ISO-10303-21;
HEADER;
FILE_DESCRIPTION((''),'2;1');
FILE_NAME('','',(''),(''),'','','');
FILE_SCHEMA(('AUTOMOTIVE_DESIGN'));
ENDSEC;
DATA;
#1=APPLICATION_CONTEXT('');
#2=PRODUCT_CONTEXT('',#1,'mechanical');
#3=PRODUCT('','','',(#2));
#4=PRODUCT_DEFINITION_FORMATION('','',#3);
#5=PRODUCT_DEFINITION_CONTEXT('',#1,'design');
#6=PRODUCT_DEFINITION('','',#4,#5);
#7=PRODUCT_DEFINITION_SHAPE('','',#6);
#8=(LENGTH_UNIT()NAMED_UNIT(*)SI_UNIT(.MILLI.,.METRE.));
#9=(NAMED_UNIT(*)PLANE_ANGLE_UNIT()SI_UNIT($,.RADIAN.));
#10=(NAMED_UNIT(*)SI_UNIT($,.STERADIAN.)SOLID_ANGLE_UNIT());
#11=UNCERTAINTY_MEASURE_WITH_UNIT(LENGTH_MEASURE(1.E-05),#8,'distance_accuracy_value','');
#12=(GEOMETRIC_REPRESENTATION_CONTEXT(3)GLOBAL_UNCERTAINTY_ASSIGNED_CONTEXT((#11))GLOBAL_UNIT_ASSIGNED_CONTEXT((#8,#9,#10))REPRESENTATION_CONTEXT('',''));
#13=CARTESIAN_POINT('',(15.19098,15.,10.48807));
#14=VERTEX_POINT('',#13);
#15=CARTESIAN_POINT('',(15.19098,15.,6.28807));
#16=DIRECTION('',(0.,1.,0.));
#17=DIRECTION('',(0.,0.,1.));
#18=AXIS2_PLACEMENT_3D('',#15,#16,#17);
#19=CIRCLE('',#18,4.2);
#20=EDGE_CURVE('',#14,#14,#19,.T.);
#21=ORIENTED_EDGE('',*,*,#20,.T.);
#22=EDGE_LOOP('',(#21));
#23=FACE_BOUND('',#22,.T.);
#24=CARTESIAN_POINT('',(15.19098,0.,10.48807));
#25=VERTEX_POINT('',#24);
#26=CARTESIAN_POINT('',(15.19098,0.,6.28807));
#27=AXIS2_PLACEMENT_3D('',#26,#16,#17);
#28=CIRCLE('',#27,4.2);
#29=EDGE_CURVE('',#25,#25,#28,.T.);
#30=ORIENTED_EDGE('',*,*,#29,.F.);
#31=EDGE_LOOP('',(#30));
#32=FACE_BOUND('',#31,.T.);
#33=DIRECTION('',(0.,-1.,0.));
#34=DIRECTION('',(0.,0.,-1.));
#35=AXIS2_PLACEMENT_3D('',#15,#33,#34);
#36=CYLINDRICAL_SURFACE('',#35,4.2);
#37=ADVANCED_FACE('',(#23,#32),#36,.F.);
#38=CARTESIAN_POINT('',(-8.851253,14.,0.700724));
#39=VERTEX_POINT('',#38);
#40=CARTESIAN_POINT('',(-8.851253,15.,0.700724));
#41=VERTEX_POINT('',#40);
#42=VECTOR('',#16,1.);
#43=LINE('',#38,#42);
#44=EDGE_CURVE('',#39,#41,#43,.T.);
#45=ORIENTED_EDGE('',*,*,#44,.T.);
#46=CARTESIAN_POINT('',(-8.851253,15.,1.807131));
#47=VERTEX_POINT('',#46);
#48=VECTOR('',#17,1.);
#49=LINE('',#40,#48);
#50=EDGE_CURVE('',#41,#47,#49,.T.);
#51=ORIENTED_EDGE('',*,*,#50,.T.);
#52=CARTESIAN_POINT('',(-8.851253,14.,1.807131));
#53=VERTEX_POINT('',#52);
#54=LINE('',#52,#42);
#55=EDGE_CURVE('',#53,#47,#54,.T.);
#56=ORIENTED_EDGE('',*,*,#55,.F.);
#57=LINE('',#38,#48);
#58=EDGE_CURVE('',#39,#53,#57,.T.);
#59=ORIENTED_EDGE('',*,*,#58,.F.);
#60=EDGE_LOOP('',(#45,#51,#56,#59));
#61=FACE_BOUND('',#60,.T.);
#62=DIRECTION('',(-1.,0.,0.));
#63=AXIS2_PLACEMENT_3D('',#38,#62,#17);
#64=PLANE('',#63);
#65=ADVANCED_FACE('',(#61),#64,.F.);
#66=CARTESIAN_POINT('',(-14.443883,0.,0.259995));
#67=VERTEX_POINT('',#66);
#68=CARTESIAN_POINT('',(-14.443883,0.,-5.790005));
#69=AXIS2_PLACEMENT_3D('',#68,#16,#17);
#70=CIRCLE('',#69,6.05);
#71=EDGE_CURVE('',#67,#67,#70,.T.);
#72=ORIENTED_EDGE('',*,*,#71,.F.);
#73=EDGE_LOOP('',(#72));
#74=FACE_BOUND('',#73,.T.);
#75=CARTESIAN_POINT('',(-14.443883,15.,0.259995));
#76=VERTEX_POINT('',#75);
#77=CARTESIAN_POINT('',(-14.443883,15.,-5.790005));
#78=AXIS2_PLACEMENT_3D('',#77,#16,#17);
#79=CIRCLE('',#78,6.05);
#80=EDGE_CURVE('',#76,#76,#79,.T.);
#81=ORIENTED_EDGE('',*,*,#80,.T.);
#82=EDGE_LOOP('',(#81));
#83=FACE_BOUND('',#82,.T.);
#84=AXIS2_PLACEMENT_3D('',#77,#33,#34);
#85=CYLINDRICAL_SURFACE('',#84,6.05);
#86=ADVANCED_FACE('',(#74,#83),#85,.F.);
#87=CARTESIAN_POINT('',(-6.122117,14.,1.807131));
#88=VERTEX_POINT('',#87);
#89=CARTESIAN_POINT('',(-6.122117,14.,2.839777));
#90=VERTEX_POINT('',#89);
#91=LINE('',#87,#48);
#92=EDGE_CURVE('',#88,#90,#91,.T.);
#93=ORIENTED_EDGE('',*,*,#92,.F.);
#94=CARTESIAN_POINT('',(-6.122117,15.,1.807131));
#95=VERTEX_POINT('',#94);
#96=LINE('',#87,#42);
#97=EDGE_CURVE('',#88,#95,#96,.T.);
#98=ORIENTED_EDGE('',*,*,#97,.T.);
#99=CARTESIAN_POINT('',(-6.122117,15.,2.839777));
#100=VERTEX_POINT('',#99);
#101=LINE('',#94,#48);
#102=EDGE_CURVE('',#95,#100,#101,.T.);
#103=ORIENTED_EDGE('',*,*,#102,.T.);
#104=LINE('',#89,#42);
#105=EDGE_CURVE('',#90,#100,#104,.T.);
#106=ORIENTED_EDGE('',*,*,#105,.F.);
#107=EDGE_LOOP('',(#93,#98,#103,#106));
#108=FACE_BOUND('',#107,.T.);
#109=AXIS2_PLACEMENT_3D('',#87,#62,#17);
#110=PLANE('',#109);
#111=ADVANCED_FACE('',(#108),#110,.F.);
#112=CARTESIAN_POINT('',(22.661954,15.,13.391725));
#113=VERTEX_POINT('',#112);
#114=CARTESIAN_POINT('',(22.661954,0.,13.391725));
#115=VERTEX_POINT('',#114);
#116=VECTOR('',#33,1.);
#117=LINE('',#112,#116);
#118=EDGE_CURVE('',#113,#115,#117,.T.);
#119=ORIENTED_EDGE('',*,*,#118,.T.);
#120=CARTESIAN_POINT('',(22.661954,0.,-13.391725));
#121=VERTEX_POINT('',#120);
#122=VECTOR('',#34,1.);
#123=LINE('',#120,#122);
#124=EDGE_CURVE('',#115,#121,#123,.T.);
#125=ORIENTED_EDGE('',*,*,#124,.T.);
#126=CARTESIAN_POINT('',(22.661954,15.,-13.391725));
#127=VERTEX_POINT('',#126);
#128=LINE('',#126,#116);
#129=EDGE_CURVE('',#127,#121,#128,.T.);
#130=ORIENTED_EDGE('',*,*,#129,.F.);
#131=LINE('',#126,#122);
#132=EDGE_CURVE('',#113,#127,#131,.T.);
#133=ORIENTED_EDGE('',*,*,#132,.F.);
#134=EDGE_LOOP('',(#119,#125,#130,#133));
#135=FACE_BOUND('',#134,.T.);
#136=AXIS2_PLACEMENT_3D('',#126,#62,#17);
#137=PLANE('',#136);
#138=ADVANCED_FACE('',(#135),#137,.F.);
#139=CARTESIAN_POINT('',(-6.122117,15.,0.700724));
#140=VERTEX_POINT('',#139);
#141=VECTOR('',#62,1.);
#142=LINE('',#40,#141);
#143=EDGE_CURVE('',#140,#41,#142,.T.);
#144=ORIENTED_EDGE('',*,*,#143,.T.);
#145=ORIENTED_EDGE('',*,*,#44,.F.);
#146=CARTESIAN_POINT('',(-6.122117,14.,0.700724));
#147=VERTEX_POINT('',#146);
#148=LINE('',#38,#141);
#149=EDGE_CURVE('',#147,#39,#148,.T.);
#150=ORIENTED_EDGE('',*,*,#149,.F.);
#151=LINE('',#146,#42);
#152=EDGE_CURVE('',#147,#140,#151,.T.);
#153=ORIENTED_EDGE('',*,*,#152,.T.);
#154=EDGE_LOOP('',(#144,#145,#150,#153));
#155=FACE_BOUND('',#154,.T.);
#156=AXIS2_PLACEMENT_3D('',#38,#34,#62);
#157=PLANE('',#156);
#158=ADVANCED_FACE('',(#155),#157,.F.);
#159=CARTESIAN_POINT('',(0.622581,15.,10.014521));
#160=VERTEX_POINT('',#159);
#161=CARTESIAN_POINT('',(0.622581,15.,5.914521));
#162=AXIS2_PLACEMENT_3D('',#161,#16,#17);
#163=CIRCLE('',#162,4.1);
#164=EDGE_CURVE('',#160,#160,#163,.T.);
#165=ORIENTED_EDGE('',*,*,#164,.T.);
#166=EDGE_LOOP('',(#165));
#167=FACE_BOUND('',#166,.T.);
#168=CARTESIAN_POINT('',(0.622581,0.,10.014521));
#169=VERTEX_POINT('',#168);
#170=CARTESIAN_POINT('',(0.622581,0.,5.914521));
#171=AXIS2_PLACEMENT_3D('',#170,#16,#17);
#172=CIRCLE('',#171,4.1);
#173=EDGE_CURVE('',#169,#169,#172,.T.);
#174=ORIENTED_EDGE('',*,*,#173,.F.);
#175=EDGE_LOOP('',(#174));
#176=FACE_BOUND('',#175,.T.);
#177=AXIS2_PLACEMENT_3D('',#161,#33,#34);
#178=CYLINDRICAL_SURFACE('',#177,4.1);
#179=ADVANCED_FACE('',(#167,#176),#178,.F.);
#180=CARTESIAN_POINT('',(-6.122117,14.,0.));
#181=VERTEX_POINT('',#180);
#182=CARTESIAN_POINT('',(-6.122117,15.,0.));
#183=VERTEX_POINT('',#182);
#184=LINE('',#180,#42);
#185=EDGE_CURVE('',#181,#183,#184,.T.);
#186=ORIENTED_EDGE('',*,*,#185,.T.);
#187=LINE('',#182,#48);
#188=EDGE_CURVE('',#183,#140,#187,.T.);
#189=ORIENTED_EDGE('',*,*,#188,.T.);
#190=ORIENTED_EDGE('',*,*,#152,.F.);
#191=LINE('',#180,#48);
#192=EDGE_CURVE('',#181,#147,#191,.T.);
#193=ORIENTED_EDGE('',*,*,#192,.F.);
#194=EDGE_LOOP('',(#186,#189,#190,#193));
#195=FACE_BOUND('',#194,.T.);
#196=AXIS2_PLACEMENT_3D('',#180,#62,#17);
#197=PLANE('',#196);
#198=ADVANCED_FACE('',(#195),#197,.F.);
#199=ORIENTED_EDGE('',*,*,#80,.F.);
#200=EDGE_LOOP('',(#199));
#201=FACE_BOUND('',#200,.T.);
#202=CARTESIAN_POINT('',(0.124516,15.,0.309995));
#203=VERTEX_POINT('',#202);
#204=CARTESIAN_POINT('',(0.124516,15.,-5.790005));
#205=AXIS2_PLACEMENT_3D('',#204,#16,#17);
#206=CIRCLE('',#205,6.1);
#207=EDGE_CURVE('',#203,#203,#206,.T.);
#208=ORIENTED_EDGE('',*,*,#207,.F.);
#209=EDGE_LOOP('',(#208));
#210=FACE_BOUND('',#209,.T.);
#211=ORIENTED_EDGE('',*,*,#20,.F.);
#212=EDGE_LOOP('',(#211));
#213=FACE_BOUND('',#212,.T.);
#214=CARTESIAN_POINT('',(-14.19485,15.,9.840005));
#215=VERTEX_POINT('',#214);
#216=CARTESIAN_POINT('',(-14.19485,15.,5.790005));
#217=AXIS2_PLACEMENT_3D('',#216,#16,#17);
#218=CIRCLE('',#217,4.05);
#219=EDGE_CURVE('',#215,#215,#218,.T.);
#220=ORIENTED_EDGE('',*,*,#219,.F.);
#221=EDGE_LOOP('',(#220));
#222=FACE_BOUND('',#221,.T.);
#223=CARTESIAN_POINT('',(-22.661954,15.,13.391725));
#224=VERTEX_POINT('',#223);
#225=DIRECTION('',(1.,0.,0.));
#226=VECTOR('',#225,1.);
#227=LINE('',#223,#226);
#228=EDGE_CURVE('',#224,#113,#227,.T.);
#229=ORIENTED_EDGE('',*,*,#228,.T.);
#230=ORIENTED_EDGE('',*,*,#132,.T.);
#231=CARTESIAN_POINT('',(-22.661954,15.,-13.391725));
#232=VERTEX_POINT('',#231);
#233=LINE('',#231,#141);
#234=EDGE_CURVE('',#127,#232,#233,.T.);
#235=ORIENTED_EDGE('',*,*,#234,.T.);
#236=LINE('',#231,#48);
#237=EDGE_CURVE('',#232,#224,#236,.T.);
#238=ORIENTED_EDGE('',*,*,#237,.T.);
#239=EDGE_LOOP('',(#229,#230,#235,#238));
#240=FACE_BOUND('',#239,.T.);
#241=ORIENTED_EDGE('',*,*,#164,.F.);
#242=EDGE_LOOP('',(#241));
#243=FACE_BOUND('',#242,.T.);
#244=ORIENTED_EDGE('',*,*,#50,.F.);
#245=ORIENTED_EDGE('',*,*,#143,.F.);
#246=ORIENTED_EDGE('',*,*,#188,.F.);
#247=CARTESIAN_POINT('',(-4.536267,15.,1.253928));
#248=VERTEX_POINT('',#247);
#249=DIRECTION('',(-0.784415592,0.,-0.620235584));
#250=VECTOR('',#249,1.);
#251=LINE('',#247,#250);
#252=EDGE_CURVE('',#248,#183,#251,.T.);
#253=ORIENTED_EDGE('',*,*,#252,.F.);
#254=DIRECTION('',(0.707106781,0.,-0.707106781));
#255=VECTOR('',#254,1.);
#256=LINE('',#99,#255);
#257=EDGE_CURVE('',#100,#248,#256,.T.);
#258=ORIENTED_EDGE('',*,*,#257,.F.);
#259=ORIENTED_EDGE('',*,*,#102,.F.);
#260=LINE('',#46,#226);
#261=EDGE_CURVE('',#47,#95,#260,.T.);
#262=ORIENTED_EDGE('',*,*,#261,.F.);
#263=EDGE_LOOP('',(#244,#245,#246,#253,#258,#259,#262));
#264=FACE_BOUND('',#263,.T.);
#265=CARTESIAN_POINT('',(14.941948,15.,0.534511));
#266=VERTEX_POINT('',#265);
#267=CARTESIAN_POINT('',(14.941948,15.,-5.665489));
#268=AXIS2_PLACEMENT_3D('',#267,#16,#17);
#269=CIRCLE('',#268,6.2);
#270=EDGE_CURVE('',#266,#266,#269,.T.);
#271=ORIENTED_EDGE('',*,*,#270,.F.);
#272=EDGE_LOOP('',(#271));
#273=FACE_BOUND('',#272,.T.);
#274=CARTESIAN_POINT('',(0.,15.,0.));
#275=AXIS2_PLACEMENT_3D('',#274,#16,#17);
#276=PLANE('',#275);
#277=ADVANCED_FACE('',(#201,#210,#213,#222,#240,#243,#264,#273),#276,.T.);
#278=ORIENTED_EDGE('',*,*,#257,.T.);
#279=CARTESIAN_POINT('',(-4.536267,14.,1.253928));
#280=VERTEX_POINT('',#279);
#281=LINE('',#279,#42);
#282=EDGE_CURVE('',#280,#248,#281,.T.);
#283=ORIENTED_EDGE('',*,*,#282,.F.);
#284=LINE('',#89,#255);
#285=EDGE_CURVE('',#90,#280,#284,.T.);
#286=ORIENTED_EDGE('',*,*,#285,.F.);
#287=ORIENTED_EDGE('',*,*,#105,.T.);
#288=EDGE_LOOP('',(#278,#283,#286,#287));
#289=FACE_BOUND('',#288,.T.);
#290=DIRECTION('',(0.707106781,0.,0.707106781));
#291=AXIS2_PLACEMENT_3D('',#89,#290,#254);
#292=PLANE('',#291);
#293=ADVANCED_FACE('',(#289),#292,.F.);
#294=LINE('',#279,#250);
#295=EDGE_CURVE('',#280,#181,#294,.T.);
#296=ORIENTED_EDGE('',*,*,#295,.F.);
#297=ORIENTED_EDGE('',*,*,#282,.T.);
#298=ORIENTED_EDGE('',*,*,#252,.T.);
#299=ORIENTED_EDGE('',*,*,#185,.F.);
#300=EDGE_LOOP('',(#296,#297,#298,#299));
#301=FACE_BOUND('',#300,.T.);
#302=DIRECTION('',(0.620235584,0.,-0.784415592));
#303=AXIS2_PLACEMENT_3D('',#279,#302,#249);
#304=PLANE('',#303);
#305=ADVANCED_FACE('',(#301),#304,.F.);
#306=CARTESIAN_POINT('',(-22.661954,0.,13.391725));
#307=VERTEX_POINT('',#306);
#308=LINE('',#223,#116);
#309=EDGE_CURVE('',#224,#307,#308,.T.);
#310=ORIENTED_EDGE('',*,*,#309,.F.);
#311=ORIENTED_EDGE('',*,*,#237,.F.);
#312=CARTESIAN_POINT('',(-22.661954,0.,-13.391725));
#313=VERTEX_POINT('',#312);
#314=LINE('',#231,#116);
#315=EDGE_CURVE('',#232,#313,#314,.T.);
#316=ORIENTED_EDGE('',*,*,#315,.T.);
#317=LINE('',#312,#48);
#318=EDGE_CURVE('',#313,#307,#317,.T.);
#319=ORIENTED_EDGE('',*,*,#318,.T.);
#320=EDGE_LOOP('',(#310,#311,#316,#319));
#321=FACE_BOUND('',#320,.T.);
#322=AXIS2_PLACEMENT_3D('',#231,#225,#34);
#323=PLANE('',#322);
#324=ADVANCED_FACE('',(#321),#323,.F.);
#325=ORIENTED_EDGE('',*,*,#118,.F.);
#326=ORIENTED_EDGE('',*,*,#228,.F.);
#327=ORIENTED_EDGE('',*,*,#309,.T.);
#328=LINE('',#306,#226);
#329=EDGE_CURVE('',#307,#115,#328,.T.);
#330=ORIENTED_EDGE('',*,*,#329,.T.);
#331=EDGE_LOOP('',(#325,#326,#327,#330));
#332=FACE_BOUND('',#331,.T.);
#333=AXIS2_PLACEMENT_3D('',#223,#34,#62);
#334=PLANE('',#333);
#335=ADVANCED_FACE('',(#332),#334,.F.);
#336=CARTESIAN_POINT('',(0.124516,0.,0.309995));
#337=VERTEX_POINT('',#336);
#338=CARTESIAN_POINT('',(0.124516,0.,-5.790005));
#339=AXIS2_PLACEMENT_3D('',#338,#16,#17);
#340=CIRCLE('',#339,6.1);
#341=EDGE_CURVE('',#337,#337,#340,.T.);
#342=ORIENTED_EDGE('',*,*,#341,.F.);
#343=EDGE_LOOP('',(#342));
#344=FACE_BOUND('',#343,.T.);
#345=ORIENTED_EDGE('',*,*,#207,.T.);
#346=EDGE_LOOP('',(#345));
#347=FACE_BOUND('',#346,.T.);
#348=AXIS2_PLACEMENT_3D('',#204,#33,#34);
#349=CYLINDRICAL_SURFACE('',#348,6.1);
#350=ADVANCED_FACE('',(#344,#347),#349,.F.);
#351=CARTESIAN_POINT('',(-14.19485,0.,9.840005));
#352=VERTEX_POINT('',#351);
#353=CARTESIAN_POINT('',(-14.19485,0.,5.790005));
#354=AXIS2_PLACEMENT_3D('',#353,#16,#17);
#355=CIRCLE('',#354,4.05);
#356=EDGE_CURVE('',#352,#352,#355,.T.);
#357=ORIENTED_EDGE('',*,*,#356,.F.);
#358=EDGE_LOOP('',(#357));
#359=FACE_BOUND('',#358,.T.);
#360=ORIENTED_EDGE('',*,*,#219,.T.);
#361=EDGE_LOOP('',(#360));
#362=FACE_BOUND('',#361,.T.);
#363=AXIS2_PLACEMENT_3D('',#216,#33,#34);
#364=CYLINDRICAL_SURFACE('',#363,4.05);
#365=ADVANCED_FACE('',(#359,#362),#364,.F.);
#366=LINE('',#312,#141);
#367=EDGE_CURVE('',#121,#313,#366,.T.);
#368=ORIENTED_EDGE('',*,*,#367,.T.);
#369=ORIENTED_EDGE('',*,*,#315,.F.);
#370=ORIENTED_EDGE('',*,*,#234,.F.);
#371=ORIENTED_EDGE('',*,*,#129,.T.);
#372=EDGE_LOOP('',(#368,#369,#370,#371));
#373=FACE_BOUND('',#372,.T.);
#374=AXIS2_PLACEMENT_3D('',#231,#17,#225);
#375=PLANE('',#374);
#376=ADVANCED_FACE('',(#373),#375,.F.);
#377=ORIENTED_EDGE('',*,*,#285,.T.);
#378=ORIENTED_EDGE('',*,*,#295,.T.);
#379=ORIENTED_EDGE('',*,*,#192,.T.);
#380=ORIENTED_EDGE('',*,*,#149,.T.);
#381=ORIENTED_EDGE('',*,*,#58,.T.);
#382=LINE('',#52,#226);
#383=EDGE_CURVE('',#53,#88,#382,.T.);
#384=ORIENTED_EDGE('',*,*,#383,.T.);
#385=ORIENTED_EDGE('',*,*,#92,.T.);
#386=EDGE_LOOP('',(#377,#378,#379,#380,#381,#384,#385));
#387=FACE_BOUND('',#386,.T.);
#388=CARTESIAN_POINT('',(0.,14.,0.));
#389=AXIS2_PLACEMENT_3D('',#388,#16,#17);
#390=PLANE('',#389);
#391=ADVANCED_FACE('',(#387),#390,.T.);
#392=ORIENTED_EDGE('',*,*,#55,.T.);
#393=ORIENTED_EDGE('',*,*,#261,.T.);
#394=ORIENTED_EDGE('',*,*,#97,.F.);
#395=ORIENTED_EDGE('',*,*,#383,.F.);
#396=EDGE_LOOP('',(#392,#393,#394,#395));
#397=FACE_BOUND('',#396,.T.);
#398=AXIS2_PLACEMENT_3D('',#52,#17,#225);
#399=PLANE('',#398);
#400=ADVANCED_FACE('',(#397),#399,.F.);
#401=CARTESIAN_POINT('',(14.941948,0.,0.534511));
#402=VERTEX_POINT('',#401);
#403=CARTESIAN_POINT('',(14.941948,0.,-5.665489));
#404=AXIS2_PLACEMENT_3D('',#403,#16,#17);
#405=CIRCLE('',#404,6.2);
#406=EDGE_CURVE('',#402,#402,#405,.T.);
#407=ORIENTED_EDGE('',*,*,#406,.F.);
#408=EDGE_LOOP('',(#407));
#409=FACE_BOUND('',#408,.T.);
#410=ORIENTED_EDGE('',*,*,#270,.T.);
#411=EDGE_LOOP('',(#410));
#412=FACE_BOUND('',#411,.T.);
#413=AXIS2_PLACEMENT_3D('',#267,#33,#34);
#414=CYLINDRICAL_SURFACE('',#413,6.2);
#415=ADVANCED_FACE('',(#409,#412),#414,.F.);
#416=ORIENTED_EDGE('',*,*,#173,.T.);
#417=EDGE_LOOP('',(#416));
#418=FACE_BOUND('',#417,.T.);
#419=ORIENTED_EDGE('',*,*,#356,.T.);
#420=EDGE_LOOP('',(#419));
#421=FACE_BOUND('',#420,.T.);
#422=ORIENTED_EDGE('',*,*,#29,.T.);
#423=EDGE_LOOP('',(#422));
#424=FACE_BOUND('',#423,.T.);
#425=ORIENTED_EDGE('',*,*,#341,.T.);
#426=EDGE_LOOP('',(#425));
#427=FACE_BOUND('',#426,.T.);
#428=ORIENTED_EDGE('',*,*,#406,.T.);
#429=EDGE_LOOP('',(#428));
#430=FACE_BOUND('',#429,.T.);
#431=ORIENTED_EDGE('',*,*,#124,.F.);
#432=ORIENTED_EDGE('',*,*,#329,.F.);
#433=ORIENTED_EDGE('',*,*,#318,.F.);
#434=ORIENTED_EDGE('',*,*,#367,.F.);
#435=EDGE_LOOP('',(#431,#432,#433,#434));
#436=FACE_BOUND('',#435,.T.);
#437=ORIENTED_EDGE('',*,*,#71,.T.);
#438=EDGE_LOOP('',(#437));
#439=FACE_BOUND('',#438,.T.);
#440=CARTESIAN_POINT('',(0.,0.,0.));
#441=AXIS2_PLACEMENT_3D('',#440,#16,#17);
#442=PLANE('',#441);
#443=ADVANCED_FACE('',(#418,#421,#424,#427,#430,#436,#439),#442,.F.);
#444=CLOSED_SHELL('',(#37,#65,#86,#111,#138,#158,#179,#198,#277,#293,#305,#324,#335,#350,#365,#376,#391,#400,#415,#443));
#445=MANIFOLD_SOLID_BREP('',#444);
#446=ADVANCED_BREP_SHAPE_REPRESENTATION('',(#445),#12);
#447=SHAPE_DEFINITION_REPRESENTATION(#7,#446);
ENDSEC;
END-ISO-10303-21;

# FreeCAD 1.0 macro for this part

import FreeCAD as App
import Part
import Sketcher

V = App.Vector
Q = App.Units.Quantity

doc = App.newDocument("Part")
body = doc.addObject("PartDesign::Body", "Body")

sketch1 = body.newObject("Sketcher::SketchObject", "Sketch")
sketch1.AttachmentSupport = (doc.getObject("XZ_Plane"), [""])
sketch1.MapMode = "FlatFace"
sketch1.addGeometry([
    Part.LineSegment(V(-22.7, -13.4, 0), V(-22.7, 13.4, 0)),
    Part.LineSegment(V(-22.7, 13.4, 0), V(22.7, 13.4, 0)),
    Part.LineSegment(V(22.7, 13.4, 0), V(22.7, -13.4, 0)),
    Part.LineSegment(V(22.7, -13.4, 0), V(-22.7, -13.4, 0)),
    Part.Circle(V(-14.2, 5.8, 0), V(0, 0, 1), 4),
    Part.Circle(V(0.6, 5.9, 0), V(0, 0, 1), 4.1),
    Part.Circle(V(15.2, 6.3, 0), V(0, 0, 1), 4.2),
    Part.Circle(V(-14.4, -5.8, 0), V(0, 0, 1), 6),
    Part.Circle(V(0.1, -5.8, 0), V(0, 0, 1), 6.1),
    Part.Circle(V(14.9, -5.7, 0), V(0, 0, 1), 6.2),
], False)
sketch1.addConstraint([
    Sketcher.Constraint("Coincident", 0, 2, 1, 1),
    Sketcher.Constraint("Coincident", 1, 2, 2, 1),
    Sketcher.Constraint("Coincident", 2, 2, 3, 1),
    Sketcher.Constraint("Coincident", 3, 2, 0, 1),
    Sketcher.Constraint("Vertical", 0),
    Sketcher.Constraint("Horizontal", 1),
    Sketcher.Constraint("Vertical", 2),
    Sketcher.Constraint("Horizontal", 3),
    Sketcher.Constraint("Symmetric", 0, 2, 2, 2, -1, 1),
    Sketcher.Constraint("Horizontal", 7, 3, 8, 3),
    Sketcher.Constraint("Diameter", 4, Q("8.1 mm")),
    Sketcher.Constraint("Diameter", 5, Q("8.2 mm")),
    Sketcher.Constraint("Diameter", 6, Q("8.4 mm")),
    Sketcher.Constraint("Diameter", 7, Q("12.1 mm")),
    Sketcher.Constraint("Diameter", 8, Q("12.2 mm")),
    Sketcher.Constraint("Diameter", 9, Q("12.4 mm")),
    Sketcher.Constraint("DistanceX", 1, 1, 1, 2, Q("45.323908 mm")),
    Sketcher.Constraint("DistanceY", 0, 1, 0, 2, Q("26.783449 mm")),
    Sketcher.Constraint("DistanceX", 5, 3, 6, 3, Q("14.568399 mm")),
    Sketcher.Constraint("DistanceX", 7, 3, 8, 3, Q("14.568399 mm")),
    Sketcher.Constraint("DistanceX", 4, 3, 9, 3, Q("29.136798 mm")),
    Sketcher.Constraint("DistanceX", 4, 3, -1, 1, Q("14.19485 mm")),
    Sketcher.Constraint("DistanceX", -1, 1, 5, 3, Q("0.622581 mm")),
    Sketcher.Constraint("DistanceY", -1, 1, 5, 3, Q("5.914521 mm")),
    Sketcher.Constraint("DistanceY", -1, 1, 6, 3, Q("6.28807 mm")),
    Sketcher.Constraint("DistanceY", 9, 3, -1, 1, Q("5.665489 mm")),
    Sketcher.Constraint("DistanceY", 7, 3, 4, 3, Q("11.58001 mm")),
    Sketcher.Constraint("DistanceX", 8, 3, 9, 3, Q("14.817432 mm")),
    Sketcher.Constraint("DistanceY", 4, 3, 0, 2, Q("7.60172 mm")),
])
pad1 = body.newObject("PartDesign::Pad", "Pad")
pad1.Profile = sketch1
pad1.Length = 15
pad1.Reversed = True

sketch2 = body.newObject("Sketcher::SketchObject", "Sketch001")
sketch2.AttachmentSupport = (doc.getObject("XZ_Plane"), [""])
sketch2.MapMode = "FlatFace"
sketch2.AttachmentOffset = App.Placement(V(0, 0, -15), App.Rotation())
sketch2.addGeometry([
    Part.LineSegment(V(-6.1, 0, 0), V(-6.1, 0.7, 0)),
    Part.LineSegment(V(-6.1, 0.7, 0), V(-8.9, 0.7, 0)),
    Part.LineSegment(V(-8.9, 0.7, 0), V(-8.9, 1.8, 0)),
    Part.LineSegment(V(-8.9, 1.8, 0), V(-6.1, 1.8, 0)),
    Part.LineSegment(V(-6.1, 1.8, 0), V(-6.1, 2.8, 0)),
    Part.LineSegment(V(-6.1, 2.8, 0), V(-4.5, 1.3, 0)),
    Part.LineSegment(V(-4.5, 1.3, 0), V(-6.1, 0, 0)),
], False)
sketch2.addConstraint([
    Sketcher.Constraint("Coincident", 0, 2, 1, 1),
    Sketcher.Constraint("Coincident", 1, 2, 2, 1),
    Sketcher.Constraint("Coincident", 2, 2, 3, 1),
    Sketcher.Constraint("Coincident", 3, 2, 4, 1),
    Sketcher.Constraint("Coincident", 4, 2, 5, 1),
    Sketcher.Constraint("Coincident", 5, 2, 6, 1),
    Sketcher.Constraint("Coincident", 6, 2, 0, 1),
    Sketcher.Constraint("Vertical", 0),
    Sketcher.Constraint("Horizontal", 1),
    Sketcher.Constraint("Vertical", 2),
    Sketcher.Constraint("Horizontal", 3),
    Sketcher.Constraint("Vertical", 4),
    Sketcher.Constraint("PointOnObject", 6, 2, -1),
    Sketcher.Constraint("Vertical", 0, 2, 3, 2),
    Sketcher.Constraint("Angle", 5, Q("-45 deg")),
    Sketcher.Constraint("Distance", 5, Q("2.24273 mm")),
    Sketcher.Constraint("DistanceX", 1, 2, 1, 1, Q("2.729136 mm")),
    Sketcher.Constraint("DistanceY", 0, 1, 0, 2, Q("0.700724 mm")),
    Sketcher.Constraint("DistanceY", 2, 1, 2, 2, Q("1.106407 mm")),
    Sketcher.Constraint("DistanceY", 4, 1, 4, 2, Q("1.032646 mm")),
    Sketcher.Constraint("DistanceX", 0, 2, -1, 1, Q("6.122117 mm")),
])
pocket1 = body.newObject("PartDesign::Pocket", "Pocket")
pocket1.Profile = sketch2
pocket1.Length = 1
pocket1.Reversed = True

doc.recompute()
